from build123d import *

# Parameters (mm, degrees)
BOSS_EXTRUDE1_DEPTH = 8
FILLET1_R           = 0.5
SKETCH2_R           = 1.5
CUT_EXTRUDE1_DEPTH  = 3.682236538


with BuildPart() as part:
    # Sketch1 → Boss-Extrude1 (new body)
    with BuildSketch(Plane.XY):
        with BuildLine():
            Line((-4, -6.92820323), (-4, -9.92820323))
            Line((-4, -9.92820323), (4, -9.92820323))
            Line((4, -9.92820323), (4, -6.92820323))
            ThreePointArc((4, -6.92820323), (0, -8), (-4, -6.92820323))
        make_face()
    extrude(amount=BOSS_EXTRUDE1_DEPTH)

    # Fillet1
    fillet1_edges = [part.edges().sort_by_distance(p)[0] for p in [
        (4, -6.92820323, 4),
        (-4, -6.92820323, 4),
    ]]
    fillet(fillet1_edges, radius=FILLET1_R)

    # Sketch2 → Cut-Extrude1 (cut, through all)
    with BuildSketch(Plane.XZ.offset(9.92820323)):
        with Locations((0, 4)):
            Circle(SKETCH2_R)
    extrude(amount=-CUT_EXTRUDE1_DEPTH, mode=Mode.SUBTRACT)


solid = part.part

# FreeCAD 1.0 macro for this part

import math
import FreeCAD as App
import Part
import Sketcher
Q = App.Units.Quantity


def edges_at(feature, points):
    """Names of the edges that pass closest to the given points."""
    edges = feature.Shape.Edges
    near = lambda p: min(range(len(edges)), key=lambda i: edges[i].distToShape(Part.Vertex(*p))[0])
    return sorted({f"Edge{near(p) + 1}" for p in points})

doc = App.newDocument("Part")
params = doc.addObject("Spreadsheet::Sheet", "Params")
for row, (alias, value) in enumerate([
    ("sketch1_radius", "8 mm"),
    ("sketch1_width", "8 mm"),
    ("sketch1_height", "3 mm"),
    ("pad1_length", "8 mm"),
    ("fillet_radius", "0.5 mm"),
    ("sketch2_diameter", "3 mm"),
], start=1):
    params.set(f"A{row}", alias)
    params.set(f"B{row}", "=" + value)
    params.setAlias(f"B{row}", alias)

body = doc.addObject("PartDesign::Body", "Body")

# Sketch on XY plane
sketch1 = body.newObject("Sketcher::SketchObject", "Sketch")
sketch1.AttachmentSupport = (doc.getObject("XY_Plane"), [""])
sketch1.MapMode = "FlatFace"
sketch1.addGeometry([
    Part.LineSegment(App.Vector(-4, -6.9, 0), App.Vector(-4, -9.9, 0)),
    Part.LineSegment(App.Vector(-4, -9.9, 0), App.Vector(4, -9.9, 0)),
    Part.LineSegment(App.Vector(4, -9.9, 0), App.Vector(4, -6.9, 0)),
    Part.ArcOfCircle(Part.Circle(App.Vector(0, 0, 0), App.Vector(0, 0, 1), 8), math.radians(-120), math.radians(-60)),
], False)
sketch1.addConstraint([
    Sketcher.Constraint("Coincident", 0, 2, 1, 1),
    Sketcher.Constraint("Coincident", 1, 2, 2, 1),
    Sketcher.Constraint("Coincident", 2, 2, 3, 2),
    Sketcher.Constraint("Coincident", 3, 1, 0, 1),
    Sketcher.Constraint("Vertical", 0),
    Sketcher.Constraint("Horizontal", 1),
    Sketcher.Constraint("Vertical", 2),
    Sketcher.Constraint("Coincident", 3, 3, -1, 1),
    Sketcher.Constraint("Horizontal", 2, 2, 3, 1),
    Sketcher.Constraint("Radius", 3, Q("8 mm")),
    Sketcher.Constraint("DistanceX", 1, 1, 1, 2, Q("8 mm")),
    Sketcher.Constraint("DistanceY", 0, 2, 0, 1, Q("3 mm")),
])
sketch1.setExpression("Constraints[9]", "Params.sketch1_radius")
sketch1.setExpression("Constraints[10]", "Params.sketch1_width")
sketch1.setExpression("Constraints[11]", "Params.sketch1_height")
pad1 = body.newObject("PartDesign::Pad", "Pad")
pad1.Profile = sketch1
pad1.setExpression("Length", "Params.pad1_length")
doc.recompute()

fillet = body.newObject("PartDesign::Fillet", "Fillet")
fillet.Base = (pad1, edges_at(pad1, [(4, -6.928, 4), (-4, -6.928, 4)]))
fillet.setExpression("Radius", "Params.fillet_radius")

# Sketch on XZ plane
sketch2 = body.newObject("Sketcher::SketchObject", "Sketch001")
sketch2.AttachmentSupport = (doc.getObject("XZ_Plane"), [""])
sketch2.MapMode = "FlatFace"
sketch2.AttachmentOffset = App.Placement(App.Vector(0, 0, 9.928203), App.Rotation())
sketch2.addGeometry(Part.Circle(App.Vector(0, 4, 0), App.Vector(0, 0, 1), 1.5), False)
sketch2.addConstraint([
    Sketcher.Constraint("PointOnObject", 0, 3, -2),
    Sketcher.Constraint("Diameter", 0, Q("3 mm")),
    Sketcher.Constraint("DistanceY", -1, 1, 0, 3, Q("4 mm")),
])
sketch2.setExpression("Constraints[1]", "Params.sketch2_diameter")
pocket1 = body.newObject("PartDesign::Pocket", "Pocket")
pocket1.Profile = sketch2
pocket1.Type = "ThroughAll"

doc.recompute()
